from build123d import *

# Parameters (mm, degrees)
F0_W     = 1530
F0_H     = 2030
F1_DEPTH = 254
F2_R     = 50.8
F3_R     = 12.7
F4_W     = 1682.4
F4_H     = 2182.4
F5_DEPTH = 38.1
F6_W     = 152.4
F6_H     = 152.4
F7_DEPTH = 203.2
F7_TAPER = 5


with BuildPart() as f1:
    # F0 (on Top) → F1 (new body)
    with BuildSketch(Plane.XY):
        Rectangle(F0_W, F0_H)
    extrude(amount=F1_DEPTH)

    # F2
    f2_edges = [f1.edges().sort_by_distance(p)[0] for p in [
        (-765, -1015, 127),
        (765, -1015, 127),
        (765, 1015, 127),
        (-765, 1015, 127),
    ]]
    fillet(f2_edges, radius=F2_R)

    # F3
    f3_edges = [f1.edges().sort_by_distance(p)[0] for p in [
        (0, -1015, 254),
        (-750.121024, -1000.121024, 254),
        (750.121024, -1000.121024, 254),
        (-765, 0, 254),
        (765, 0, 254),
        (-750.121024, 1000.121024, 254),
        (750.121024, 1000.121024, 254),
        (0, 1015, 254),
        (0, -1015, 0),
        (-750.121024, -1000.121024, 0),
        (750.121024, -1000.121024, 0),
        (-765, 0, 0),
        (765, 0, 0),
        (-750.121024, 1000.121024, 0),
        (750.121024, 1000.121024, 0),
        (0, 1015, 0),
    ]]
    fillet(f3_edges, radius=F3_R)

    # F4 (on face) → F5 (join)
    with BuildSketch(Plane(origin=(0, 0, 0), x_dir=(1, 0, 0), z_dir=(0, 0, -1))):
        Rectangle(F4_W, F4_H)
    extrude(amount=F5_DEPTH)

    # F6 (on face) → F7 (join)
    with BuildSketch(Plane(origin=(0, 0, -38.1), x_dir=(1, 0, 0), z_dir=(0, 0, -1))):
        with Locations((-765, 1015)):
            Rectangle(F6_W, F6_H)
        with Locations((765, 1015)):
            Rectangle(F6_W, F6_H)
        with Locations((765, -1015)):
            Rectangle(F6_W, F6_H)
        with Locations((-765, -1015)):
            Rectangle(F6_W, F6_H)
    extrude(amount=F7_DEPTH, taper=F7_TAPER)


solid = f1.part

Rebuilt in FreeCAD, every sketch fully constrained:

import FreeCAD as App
import Part
import Sketcher
from FreeCAD import Vector
Q = App.Units.Quantity


def edges_at(feature, points):
    """Names of the edges that pass closest to the given points."""
    edges = feature.Shape.Edges
    near = lambda p: min(range(len(edges)), key=lambda i: edges[i].distToShape(Part.Vertex(*p))[0])
    return sorted({f"Edge{near(p) + 1}" for p in points})


def add_polygon(sketch, points):
    """Adds a closed chain of lines whose ends are joined by coincident constraints."""
    first, n = sketch.GeometryCount, len(points)
    for a, b in zip(points, points[1:] + points[:1]):
        sketch.addGeometry(Part.LineSegment(App.Vector(*a, 0), App.Vector(*b, 0)), False)
    for i in range(n):
        sketch.addConstraint(Sketcher.Constraint("Coincident", first + i, 2, first + (i + 1) % n, 1))

doc = App.newDocument("Part")
params = doc.addObject("Spreadsheet::Sheet", "Params")
for row, (alias, value) in enumerate([
    ("pad1_length", "10 in"),
    ("fillet_radius", "2 in"),
    ("fillet2_radius", "0.5 in"),
    ("pad2_length", "1.5 in"),
    ("sketch3_width", "6 in"),
    ("pad3_length", "8 in"),
    ("pad3_taper", "-5 deg"),
], start=1):
    params.set(f"A{row}", alias)
    params.set(f"B{row}", "=" + value)
    params.setAlias(f"B{row}", alias)

body = doc.addObject("PartDesign::Body", "Body")

# Sketch on XY plane
sketch1 = body.newObject("Sketcher::SketchObject", "Sketch")
sketch1.AttachmentSupport = (doc.getObject("XY_Plane"), [""])
sketch1.MapMode = "FlatFace"
add_polygon(sketch1, [(-765, 1015), (-765, -1015), (765, -1015), (765, 1015)])  # lines 0-3
sketch1.addConstraint([
    Sketcher.Constraint("Vertical", 0),
    Sketcher.Constraint("Horizontal", 1),
    Sketcher.Constraint("Vertical", 2),
    Sketcher.Constraint("Horizontal", 3),
    Sketcher.Constraint("Symmetric", 0, 2, 2, 2, -1, 1),
    Sketcher.Constraint("DistanceX", 1, 1, 1, 2, 1530.0),
    Sketcher.Constraint("DistanceY", 0, 2, 0, 1, 2030.0),
])
pad1 = body.newObject("PartDesign::Pad", "Pad")
pad1.Profile = sketch1
pad1.setExpression("Length", "Params.pad1_length")
doc.recompute()

fillet = body.newObject("PartDesign::Fillet", "Fillet")
fillet.Base = (pad1, edges_at(pad1, [
    (-765, -1015, 127),
    (765, -1015, 127),
    (765, 1015, 127),
    (-765, 1015, 127),
]))
fillet.setExpression("Radius", "Params.fillet_radius")
doc.recompute()

fillet2 = body.newObject("PartDesign::Fillet", "Fillet001")
fillet2.Base = (fillet, edges_at(fillet, [
    (0, -1015, 254),
    (-750.121, -1000.121, 254),
    (750.121, -1000.121, 254),
    (-765, 0, 254),
    (765, 0, 254),
    (-750.121, 1000.121, 254),
    (750.121, 1000.121, 254),
    (0, 1015, 254),
    (0, -1015, 0),
    (-750.121, -1000.121, 0),
    (750.121, -1000.121, 0),
    (-765, 0, 0),
    (765, 0, 0),
    (-750.121, 1000.121, 0),
    (750.121, 1000.121, 0),
    (0, 1015, 0),
]))
fillet2.setExpression("Radius", "Params.fillet2_radius")

# Sketch on XY plane
sketch2 = body.newObject("Sketcher::SketchObject", "Sketch001")
sketch2.AttachmentSupport = (doc.getObject("XY_Plane"), [""])
sketch2.MapMode = "FlatFace"
add_polygon(sketch2, [(-841.2, -1091.2), (-841.2, 1091.2), (841.2, 1091.2), (841.2, -1091.2)])  # lines 0-3
sketch2.addConstraint([
    Sketcher.Constraint("Vertical", 0),
    Sketcher.Constraint("Horizontal", 1),
    Sketcher.Constraint("Vertical", 2),
    Sketcher.Constraint("Horizontal", 3),
    Sketcher.Constraint("Symmetric", 0, 2, 2, 2, -1, 1),
    Sketcher.Constraint("DistanceX", 1, 1, 1, 2, 1682.4),
    Sketcher.Constraint("DistanceY", 0, 1, 0, 2, 2182.4),
])
pad2 = body.newObject("PartDesign::Pad", "Pad001")
pad2.Profile = sketch2
pad2.setExpression("Length", "Params.pad2_length")
pad2.Reversed = True

# Sketch on XY plane
sketch3 = body.newObject("Sketcher::SketchObject", "Sketch002")
sketch3.AttachmentSupport = (doc.getObject("XY_Plane"), [""])
sketch3.MapMode = "FlatFace"
sketch3.AttachmentOffset = App.Placement(Vector(0, 0, -1.5 * 25.4), App.Rotation())
add_polygon(sketch3, [(-841.2, -1091.2), (-841.2, -938.8), (-688.8, -938.8), (-688.8, -1091.2)])  # lines 0-3
add_polygon(sketch3, [(688.8, -1091.2), (688.8, -938.8), (841.2, -938.8), (841.2, -1091.2)])  # lines 4-7
add_polygon(sketch3, [(688.8, 938.8), (688.8, 1091.2), (841.2, 1091.2), (841.2, 938.8)])  # lines 8-11
add_polygon(sketch3, [(-841.2, 938.8), (-841.2, 1091.2), (-688.8, 1091.2), (-688.8, 938.8)])  # lines 12-15
sketch3.addConstraint([
    Sketcher.Constraint("Vertical", 0),
    Sketcher.Constraint("Horizontal", 1),
    Sketcher.Constraint("Vertical", 2),
    Sketcher.Constraint("Horizontal", 3),
    Sketcher.Constraint("Vertical", 4),
    Sketcher.Constraint("Horizontal", 5),
    Sketcher.Constraint("Vertical", 6),
    Sketcher.Constraint("Horizontal", 7),
    Sketcher.Constraint("Vertical", 8),
    Sketcher.Constraint("Horizontal", 9),
    Sketcher.Constraint("Vertical", 10),
    Sketcher.Constraint("Horizontal", 11),
    Sketcher.Constraint("Vertical", 12),
    Sketcher.Constraint("Horizontal", 13),
    Sketcher.Constraint("Vertical", 14),
    Sketcher.Constraint("Horizontal", 15),
    Sketcher.Constraint("Symmetric", 2, 2, 8, 2, -1, 1),
    Sketcher.Constraint("Symmetric", 0, 2, 10, 2, -1, 1),
    Sketcher.Constraint("Symmetric", 6, 2, 12, 2, -1, 1),
    Sketcher.Constraint("Symmetric", 4, 2, 14, 2, -1, 1),
    Sketcher.Constraint("Symmetric", 1, 2, 4, 2, -2),
    Sketcher.Constraint("Symmetric", 3, 2, 6, 2, -2),
    Sketcher.Constraint("Equal", 15, 0),
    Sketcher.Constraint("DistanceX", 1, 1, 1, 2, Q("6 in")),
    Sketcher.Constraint("DistanceX", 0, 2, -1, 1, 841.2),
    Sketcher.Constraint("DistanceY", 0, 2, -1, 1, 938.8),
])
sketch3.setExpression("Constraints[39]", "Params.sketch3_width")
pad3 = body.newObject("PartDesign::Pad", "Pad002")
pad3.Profile = sketch3
pad3.setExpression("Length", "Params.pad3_length")
pad3.Reversed = True
pad3.setExpression("TaperAngle", "Params.pad3_taper")

doc.recompute()
